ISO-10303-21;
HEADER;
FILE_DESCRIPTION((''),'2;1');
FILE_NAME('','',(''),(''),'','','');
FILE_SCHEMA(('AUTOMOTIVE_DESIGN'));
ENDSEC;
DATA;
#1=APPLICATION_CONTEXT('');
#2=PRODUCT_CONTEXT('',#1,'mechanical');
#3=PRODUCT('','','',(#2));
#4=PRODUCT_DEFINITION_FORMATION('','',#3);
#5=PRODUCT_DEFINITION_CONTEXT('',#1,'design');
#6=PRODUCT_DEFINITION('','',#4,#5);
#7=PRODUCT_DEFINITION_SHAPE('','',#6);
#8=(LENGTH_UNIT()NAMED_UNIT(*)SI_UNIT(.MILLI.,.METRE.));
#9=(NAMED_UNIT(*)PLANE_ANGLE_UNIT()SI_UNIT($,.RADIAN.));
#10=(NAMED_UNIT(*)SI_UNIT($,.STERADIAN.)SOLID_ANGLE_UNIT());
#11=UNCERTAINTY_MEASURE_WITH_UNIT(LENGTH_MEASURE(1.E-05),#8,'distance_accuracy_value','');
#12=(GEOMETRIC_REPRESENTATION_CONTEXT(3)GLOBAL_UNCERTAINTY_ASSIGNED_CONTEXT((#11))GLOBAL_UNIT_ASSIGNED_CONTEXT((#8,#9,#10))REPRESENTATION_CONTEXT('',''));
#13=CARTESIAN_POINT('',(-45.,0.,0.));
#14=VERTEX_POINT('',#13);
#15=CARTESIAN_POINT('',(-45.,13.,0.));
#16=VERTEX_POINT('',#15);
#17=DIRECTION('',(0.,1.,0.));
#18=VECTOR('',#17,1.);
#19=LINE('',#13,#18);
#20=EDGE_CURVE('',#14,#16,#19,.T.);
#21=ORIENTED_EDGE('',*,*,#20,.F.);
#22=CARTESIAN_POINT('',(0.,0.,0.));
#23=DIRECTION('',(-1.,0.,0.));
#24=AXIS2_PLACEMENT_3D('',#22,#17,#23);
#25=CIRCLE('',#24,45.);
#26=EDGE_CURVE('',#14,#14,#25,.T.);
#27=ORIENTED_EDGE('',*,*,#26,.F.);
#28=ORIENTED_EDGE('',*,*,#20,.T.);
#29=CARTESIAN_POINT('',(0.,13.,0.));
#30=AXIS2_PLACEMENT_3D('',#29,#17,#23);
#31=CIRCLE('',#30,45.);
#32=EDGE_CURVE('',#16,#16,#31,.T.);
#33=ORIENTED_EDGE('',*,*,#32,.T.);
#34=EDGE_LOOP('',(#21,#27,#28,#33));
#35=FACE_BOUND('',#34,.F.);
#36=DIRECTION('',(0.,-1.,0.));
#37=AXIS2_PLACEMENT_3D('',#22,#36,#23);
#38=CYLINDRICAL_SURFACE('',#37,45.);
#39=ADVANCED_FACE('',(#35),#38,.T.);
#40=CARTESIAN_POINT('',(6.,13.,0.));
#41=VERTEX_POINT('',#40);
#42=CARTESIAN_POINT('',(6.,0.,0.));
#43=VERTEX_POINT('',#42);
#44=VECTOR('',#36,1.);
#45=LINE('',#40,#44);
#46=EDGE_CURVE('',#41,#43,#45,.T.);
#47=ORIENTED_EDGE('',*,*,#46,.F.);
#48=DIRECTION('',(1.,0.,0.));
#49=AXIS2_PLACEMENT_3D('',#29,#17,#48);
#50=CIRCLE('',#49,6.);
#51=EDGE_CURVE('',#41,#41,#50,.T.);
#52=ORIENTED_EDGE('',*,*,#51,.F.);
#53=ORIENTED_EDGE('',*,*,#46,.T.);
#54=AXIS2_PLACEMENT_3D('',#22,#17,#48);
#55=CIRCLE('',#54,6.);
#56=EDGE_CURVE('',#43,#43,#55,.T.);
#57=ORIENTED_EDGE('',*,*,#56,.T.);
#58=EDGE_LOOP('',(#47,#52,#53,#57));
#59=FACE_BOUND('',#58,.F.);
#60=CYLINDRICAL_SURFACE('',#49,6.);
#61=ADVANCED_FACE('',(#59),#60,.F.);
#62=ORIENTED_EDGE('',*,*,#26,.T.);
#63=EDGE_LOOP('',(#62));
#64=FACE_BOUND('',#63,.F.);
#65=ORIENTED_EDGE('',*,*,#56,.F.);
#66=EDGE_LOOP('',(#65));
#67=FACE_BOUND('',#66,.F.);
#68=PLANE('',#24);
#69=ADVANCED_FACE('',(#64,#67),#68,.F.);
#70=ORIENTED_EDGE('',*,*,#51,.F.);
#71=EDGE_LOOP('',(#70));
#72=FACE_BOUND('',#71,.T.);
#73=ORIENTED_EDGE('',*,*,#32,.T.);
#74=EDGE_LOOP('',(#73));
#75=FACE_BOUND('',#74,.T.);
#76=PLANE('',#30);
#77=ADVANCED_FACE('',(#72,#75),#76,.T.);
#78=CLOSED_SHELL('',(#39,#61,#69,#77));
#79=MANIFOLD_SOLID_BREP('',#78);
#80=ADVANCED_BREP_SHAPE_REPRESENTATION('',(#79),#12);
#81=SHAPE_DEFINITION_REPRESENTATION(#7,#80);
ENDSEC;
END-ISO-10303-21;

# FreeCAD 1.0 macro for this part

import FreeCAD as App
import Part
import Sketcher

V = App.Vector

doc = App.newDocument("Part")
body = doc.addObject("PartDesign::Body", "Body")

sketch1 = doc.addObject("Sketcher::SketchObject", "Sketch")
body.addObject(sketch1)
sketch1.AttachmentSupport = (doc.XZ_Plane, [""])
sketch1.MapMode = "FlatFace"
sketch1.addGeometry(Part.Circle(V(0, 0, 0), V(0, 0, 1), 45), False)
sketch1.addConstraint(Sketcher.Constraint("Coincident", 0, 3, -1, 1))
sketch1.addConstraint(Sketcher.Constraint("Diameter", 0, 90.0))
pad1 = doc.addObject("PartDesign::Pad", "Pad")
body.addObject(pad1)
pad1.Profile = sketch1
pad1.Length = 13
pad1.Reversed = True

sketch2 = doc.addObject("Sketcher::SketchObject", "Sketch001")
body.addObject(sketch2)
sketch2.AttachmentSupport = (doc.XZ_Plane, [""])
sketch2.MapMode = "FlatFace"
sketch2.AttachmentOffset = App.Placement(V(0, 0, -13), App.Rotation())
sketch2.addGeometry(Part.Circle(V(0, 0, 0), V(0, 0, 1), 6), False)
sketch2.addConstraint(Sketcher.Constraint("Coincident", 0, 3, -1, 1))
sketch2.addConstraint(Sketcher.Constraint("Diameter", 0, 12.0))
pocket1 = doc.addObject("PartDesign::Pocket", "Pocket")
body.addObject(pocket1)
pocket1.Profile = sketch2
pocket1.Length = 13
pocket1.Reversed = True

doc.recompute()
